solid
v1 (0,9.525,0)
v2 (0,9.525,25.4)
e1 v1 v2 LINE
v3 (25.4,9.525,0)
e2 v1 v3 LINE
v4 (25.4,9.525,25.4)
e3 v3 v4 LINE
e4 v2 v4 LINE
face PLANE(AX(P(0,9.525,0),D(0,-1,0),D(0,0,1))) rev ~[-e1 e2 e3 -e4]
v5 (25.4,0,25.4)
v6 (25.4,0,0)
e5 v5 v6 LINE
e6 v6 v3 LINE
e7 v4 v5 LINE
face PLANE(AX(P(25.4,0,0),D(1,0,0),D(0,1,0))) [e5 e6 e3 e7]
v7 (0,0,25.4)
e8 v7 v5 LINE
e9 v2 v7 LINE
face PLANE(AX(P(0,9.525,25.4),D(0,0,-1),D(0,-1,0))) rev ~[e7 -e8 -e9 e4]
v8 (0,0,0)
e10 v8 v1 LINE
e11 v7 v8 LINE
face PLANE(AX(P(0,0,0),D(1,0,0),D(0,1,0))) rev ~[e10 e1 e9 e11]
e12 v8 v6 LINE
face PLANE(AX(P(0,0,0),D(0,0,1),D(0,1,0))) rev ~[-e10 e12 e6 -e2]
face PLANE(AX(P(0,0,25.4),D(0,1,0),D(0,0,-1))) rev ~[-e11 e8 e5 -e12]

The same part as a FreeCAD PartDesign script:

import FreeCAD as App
import Part
import Sketcher
from FreeCAD import Vector
Q = App.Units.Quantity


def add_polygon(sketch, points):
    """Adds a closed chain of lines whose ends are joined by coincident constraints."""
    first, n = sketch.GeometryCount, len(points)
    for a, b in zip(points, points[1:] + points[:1]):
        sketch.addGeometry(Part.LineSegment(App.Vector(*a, 0), App.Vector(*b, 0)), False)
    for i in range(n):
        sketch.addConstraint(Sketcher.Constraint("Coincident", first + i, 2, first + (i + 1) % n, 1))

doc = App.newDocument("Part")
body = doc.addObject("PartDesign::Body", "Body")

# Sketch on YZ plane
sketch1 = doc.addObject("Sketcher::SketchObject", "Sketch")
body.addObject(sketch1)
sketch1.AttachmentSupport = (doc.YZ_Plane, [""])
sketch1.MapMode = "FlatFace"
add_polygon(sketch1, [(0, 25), (0, 0), (10, 0), (10, 25)])  # lines 0-3
sketch1.addConstraint(Sketcher.Constraint("Vertical", 0))
sketch1.addConstraint(Sketcher.Constraint("Horizontal", 1))
sketch1.addConstraint(Sketcher.Constraint("Vertical", 2))
sketch1.addConstraint(Sketcher.Constraint("Horizontal", 3))
sketch1.addConstraint(Sketcher.Constraint("Coincident", 0, 2, -1, 1))
sketch1.addConstraint(Sketcher.Constraint("DistanceY", 0, 2, 0, 1, Q("1 in")))
sketch1.addConstraint(Sketcher.Constraint("DistanceX", 1, 1, 1, 2, Q("0.375 in")))
pad1 = doc.addObject("PartDesign::Pad", "Pad")
body.addObject(pad1)
pad1.Profile = sketch1
pad1.Length = Q("1 in")

doc.recompute()
